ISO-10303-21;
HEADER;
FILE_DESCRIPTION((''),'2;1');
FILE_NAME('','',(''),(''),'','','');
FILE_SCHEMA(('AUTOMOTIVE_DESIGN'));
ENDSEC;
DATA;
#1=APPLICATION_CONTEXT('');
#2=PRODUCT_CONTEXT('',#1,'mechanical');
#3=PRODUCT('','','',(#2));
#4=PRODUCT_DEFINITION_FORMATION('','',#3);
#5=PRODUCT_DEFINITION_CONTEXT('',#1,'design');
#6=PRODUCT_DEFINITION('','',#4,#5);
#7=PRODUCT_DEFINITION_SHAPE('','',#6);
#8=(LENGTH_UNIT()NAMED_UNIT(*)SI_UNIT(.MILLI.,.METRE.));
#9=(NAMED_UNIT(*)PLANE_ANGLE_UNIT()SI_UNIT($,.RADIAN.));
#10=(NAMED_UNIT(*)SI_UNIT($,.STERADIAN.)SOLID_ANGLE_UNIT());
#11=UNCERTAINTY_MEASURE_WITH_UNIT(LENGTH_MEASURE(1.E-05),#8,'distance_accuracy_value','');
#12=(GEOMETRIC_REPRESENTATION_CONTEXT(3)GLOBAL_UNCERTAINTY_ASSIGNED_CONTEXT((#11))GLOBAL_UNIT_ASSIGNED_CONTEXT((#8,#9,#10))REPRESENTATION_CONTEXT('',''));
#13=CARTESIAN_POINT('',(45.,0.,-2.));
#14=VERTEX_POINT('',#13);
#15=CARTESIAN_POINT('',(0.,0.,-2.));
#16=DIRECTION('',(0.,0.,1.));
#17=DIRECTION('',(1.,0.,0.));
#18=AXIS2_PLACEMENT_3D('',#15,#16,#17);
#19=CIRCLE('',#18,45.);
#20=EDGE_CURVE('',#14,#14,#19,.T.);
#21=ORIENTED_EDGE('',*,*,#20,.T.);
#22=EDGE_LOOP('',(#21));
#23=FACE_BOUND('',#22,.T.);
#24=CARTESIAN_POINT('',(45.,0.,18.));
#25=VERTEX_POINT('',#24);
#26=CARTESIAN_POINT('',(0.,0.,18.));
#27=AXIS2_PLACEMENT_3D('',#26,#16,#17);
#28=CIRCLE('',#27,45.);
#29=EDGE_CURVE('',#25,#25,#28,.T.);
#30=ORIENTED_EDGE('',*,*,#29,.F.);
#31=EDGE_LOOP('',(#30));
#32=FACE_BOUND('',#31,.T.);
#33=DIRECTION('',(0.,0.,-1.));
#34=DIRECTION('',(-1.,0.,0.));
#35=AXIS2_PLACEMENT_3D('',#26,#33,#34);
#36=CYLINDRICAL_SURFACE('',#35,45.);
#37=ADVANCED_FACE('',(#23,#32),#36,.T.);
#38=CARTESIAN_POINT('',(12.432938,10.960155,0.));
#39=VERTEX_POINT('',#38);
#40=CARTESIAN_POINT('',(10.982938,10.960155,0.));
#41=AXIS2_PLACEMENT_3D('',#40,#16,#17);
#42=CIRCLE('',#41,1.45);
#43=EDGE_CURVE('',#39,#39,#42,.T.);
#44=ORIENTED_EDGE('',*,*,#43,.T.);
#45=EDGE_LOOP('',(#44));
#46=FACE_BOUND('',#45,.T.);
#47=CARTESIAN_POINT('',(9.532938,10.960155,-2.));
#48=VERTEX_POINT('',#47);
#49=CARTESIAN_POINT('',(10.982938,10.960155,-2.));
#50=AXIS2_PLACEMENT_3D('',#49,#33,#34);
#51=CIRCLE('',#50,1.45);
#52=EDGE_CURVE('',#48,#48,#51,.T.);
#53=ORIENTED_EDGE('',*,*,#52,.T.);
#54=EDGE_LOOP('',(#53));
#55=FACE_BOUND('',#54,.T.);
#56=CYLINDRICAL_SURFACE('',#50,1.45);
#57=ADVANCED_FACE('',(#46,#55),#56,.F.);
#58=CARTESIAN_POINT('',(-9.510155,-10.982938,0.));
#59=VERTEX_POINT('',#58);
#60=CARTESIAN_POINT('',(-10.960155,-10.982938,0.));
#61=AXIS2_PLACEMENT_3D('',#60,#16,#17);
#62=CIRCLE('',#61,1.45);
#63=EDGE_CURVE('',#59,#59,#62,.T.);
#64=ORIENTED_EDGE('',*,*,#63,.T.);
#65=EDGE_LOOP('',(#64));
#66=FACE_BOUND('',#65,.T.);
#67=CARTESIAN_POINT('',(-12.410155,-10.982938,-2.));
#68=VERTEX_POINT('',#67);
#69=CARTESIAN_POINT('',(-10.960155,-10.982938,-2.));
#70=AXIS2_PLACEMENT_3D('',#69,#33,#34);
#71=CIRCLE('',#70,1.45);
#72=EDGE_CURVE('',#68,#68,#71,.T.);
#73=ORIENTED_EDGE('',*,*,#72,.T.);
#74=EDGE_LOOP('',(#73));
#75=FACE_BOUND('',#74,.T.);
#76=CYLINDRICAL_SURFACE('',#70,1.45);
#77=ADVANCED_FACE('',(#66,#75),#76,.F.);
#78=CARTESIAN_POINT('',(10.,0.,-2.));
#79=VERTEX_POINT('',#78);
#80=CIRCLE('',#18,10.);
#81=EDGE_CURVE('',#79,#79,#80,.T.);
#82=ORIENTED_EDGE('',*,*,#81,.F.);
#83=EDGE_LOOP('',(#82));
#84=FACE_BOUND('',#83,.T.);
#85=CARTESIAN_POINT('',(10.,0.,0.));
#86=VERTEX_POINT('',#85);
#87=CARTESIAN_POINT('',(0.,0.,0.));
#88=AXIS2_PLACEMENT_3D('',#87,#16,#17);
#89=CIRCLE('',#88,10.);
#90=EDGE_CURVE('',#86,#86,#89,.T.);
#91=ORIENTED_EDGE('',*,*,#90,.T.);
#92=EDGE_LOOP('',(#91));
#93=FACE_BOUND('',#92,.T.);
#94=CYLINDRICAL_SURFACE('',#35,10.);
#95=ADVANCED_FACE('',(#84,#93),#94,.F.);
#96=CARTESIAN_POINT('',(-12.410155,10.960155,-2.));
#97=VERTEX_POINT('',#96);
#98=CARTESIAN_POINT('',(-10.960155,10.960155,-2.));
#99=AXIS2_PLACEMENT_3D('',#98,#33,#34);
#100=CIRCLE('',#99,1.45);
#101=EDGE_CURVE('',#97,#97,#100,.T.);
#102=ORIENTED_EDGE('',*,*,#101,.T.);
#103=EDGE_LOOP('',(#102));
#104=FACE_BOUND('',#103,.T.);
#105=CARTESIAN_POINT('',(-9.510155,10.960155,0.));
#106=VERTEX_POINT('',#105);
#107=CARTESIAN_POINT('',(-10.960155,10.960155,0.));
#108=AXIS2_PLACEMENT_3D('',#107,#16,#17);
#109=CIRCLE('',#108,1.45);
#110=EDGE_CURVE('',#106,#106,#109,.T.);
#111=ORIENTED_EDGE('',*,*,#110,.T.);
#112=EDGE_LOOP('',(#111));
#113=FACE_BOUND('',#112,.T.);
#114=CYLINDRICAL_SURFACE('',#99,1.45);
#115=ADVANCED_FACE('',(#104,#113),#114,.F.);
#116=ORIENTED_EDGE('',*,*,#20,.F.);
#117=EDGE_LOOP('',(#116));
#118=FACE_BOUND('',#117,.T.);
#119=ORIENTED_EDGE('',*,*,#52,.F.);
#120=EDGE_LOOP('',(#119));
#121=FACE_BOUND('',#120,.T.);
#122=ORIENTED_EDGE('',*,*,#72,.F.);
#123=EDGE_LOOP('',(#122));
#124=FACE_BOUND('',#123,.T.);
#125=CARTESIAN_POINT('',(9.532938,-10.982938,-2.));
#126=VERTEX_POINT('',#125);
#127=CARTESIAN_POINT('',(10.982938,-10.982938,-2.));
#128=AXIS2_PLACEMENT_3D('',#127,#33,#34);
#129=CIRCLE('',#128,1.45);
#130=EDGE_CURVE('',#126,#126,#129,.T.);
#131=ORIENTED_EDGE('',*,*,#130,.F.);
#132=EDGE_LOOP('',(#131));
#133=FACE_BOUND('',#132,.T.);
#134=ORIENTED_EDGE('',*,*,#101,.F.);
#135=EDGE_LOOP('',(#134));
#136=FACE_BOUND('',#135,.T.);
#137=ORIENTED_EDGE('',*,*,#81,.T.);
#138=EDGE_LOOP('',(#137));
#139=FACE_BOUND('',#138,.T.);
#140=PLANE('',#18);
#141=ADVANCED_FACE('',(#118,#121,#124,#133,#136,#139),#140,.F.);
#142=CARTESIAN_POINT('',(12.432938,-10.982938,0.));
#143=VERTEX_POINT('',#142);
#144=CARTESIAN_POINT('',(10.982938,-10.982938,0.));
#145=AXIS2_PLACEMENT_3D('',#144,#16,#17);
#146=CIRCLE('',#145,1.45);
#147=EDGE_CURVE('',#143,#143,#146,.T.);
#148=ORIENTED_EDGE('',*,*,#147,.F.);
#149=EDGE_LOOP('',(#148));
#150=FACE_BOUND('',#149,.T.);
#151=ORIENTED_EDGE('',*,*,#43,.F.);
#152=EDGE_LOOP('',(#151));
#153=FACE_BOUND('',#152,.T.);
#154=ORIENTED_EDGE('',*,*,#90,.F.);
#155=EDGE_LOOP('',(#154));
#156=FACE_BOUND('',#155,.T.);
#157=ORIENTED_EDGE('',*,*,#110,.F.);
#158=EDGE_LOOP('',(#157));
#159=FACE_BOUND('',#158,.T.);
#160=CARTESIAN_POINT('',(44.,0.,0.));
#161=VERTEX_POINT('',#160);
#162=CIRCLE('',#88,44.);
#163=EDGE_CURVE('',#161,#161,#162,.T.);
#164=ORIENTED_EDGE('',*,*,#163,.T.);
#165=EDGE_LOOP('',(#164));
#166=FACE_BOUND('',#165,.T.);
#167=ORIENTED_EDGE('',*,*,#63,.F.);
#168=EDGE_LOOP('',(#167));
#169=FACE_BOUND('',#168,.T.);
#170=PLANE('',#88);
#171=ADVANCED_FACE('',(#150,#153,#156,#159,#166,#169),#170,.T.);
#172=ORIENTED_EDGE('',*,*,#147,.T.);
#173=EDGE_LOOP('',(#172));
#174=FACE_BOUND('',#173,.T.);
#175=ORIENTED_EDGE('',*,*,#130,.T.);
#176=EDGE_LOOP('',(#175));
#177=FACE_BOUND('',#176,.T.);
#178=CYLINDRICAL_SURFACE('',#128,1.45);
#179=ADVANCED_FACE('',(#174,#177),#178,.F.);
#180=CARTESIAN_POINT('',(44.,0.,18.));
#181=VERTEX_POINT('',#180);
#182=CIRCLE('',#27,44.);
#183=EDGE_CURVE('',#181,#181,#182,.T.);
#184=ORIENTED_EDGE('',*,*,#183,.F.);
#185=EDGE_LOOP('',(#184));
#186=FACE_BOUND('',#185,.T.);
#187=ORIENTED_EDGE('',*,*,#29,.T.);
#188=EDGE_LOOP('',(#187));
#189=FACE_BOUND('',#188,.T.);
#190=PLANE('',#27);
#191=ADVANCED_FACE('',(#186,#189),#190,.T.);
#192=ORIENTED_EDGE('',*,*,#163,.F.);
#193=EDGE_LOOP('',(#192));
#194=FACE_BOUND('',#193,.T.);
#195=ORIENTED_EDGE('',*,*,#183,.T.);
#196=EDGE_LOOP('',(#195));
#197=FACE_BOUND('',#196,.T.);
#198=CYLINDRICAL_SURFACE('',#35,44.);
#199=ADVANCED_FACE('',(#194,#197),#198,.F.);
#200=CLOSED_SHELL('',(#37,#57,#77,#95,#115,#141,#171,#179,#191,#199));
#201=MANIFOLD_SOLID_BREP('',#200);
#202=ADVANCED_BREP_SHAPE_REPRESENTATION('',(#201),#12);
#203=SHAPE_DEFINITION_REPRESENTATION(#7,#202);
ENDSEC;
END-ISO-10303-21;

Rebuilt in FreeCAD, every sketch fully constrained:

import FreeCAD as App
import Part
import Sketcher

V = App.Vector

doc = App.newDocument("Part")
body = doc.addObject("PartDesign::Body", "Body")

sketch1 = body.newObject("Sketcher::SketchObject", "Sketch")
sketch1.AttachmentSupport = (doc.getObject("XY_Plane"), [""])
sketch1.MapMode = "FlatFace"
sketch1.addGeometry([
    Part.Circle(V(0, 0, 0), V(0, 0, 1), 45),
    Part.Circle(V(0, 0, 0), V(0, 0, 1), 44),
], False)
sketch1.addConstraint([
    Sketcher.Constraint("Coincident", 0, 3, -1, 1),
    Sketcher.Constraint("Coincident", 1, 3, -1, 1),
    Sketcher.Constraint("Diameter", 0, 90.0),
    Sketcher.Constraint("Diameter", 1, 88.0),
])
pad1 = body.newObject("PartDesign::Pad", "Pad")
pad1.Profile = sketch1
pad1.Length = 18

sketch2 = body.newObject("Sketcher::SketchObject", "Sketch001")
sketch2.AttachmentSupport = (doc.getObject("XY_Plane"), [""])
sketch2.MapMode = "FlatFace"
sketch2.AttachmentOffset = App.Placement(V(0, 0, -2), App.Rotation())
sketch2.addGeometry(Part.Circle(V(0, 0, 0), V(0, 0, 1), 45), False)
sketch2.addConstraint([
    Sketcher.Constraint("Coincident", 0, 3, -1, 1),
    Sketcher.Constraint("Diameter", 0, 90.0),
])
pad2 = body.newObject("PartDesign::Pad", "Pad001")
pad2.Profile = sketch2
pad2.Length = 2

sketch3 = body.newObject("Sketcher::SketchObject", "Sketch002")
sketch3.AttachmentSupport = (doc.getObject("XY_Plane"), [""])
sketch3.MapMode = "FlatFace"
sketch3.AttachmentOffset = App.Placement(V(0, 0, -2), App.Rotation())
sketch3.addGeometry(Part.Circle(V(-11, 11, 0), V(0, 0, 1), 1.4), False)
sketch3.addConstraint([
    Sketcher.Constraint("Diameter", 0, 2.9),
    Sketcher.Constraint("DistanceX", 0, 3, -1, 1, 10.960155),
    Sketcher.Constraint("DistanceY", -1, 1, 0, 3, 10.960155),
])
doc.recompute()
hole = body.newObject("PartDesign::Hole", "Hole")
hole.Profile = sketch3
hole.ThreadType = "None"
hole.Diameter = 2.9
hole.DepthType = "ThroughAll"
hole.Reversed = True
doc.recompute()

datumline = body.newObject("PartDesign::Line", "DatumLine")
datumline.Placement = App.Placement(V(0.011391, -0.011391, 0), App.Rotation(V(0, 0, 1), V(0, 0, 1)))
polarpattern = body.newObject("PartDesign::PolarPattern", "PolarPattern")
polarpattern.Originals = [hole]
polarpattern.Axis = (datumline, [""])
polarpattern.Angle = 360
polarpattern.Occurrences = 4
body.Tip = polarpattern

sketch4 = body.newObject("Sketcher::SketchObject", "Sketch003")
sketch4.AttachmentSupport = (doc.getObject("XY_Plane"), [""])
sketch4.MapMode = "FlatFace"
sketch4.AttachmentOffset = App.Placement(V(0, 0, -2), App.Rotation())
sketch4.addGeometry(Part.Circle(V(0, 0, 0), V(0, 0, 1), 10), False)
sketch4.addConstraint([
    Sketcher.Constraint("Coincident", 0, 3, -1, 1),
    Sketcher.Constraint("Diameter", 0, 20.0),
])
pocket1 = body.newObject("PartDesign::Pocket", "Pocket")
pocket1.Profile = sketch4
pocket1.Type = "ThroughAll"
pocket1.Midplane = True

doc.recompute()
